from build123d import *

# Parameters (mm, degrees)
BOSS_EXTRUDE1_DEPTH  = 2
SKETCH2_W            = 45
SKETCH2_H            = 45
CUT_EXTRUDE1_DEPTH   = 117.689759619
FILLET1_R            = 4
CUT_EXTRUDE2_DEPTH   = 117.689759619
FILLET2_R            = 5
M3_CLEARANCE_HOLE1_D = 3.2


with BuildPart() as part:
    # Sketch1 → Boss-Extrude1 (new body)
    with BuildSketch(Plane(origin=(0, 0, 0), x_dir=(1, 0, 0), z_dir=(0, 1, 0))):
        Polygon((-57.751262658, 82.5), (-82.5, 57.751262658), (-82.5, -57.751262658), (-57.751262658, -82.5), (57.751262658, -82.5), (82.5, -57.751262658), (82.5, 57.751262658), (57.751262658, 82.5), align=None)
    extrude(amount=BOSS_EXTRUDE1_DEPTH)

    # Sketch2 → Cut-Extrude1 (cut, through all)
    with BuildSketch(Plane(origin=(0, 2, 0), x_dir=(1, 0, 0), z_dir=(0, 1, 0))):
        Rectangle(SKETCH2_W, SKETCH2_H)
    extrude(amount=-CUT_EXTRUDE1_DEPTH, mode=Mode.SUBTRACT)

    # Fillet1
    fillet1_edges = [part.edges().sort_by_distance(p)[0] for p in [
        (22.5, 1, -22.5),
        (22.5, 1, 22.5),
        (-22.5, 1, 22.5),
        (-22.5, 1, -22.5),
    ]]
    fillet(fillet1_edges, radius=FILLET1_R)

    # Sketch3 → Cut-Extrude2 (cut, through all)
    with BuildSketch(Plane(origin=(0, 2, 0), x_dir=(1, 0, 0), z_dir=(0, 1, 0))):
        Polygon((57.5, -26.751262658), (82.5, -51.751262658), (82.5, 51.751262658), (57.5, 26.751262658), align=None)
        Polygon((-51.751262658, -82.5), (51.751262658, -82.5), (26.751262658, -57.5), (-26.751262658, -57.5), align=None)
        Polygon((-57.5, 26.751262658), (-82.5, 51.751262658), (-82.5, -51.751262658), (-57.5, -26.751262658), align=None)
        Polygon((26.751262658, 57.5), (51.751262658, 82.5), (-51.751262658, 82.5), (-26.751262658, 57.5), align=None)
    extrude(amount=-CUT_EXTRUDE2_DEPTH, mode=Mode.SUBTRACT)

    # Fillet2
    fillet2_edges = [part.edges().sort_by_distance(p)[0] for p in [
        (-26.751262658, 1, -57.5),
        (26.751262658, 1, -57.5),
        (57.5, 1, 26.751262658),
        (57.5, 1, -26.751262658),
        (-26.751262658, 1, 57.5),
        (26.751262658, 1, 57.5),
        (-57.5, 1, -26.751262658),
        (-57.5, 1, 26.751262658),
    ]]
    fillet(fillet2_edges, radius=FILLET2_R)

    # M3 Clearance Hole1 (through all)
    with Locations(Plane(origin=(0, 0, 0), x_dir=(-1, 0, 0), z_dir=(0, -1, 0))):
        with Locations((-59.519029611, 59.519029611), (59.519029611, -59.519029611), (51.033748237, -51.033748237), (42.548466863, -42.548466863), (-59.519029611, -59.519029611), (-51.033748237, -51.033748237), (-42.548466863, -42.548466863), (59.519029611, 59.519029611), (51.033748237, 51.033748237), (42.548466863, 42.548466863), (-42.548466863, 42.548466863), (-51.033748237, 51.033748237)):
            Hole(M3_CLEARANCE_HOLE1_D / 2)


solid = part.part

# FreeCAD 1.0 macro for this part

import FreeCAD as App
import Part
import Sketcher


def edges_at(feature, points):
    """Names of the edges that pass closest to the given points."""
    edges = feature.Shape.Edges
    near = lambda p: min(range(len(edges)), key=lambda i: edges[i].distToShape(Part.Vertex(*p))[0])
    return sorted({f"Edge{near(p) + 1}" for p in points})


def add_polygon(sketch, points):
    """Adds a closed chain of lines whose ends are joined by coincident constraints."""
    first, n = sketch.GeometryCount, len(points)
    for a, b in zip(points, points[1:] + points[:1]):
        sketch.addGeometry(Part.LineSegment(App.Vector(*a, 0), App.Vector(*b, 0)), False)
    for i in range(n):
        sketch.addConstraint(Sketcher.Constraint("Coincident", first + i, 2, first + (i + 1) % n, 1))

doc = App.newDocument("Part")
params = doc.addObject("Spreadsheet::Sheet", "Params")
for row, (alias, value) in enumerate([
    ("sketch1_length", "35 mm"),
    ("pad1_length", "2 mm"),
    ("sketch2_width", "45 mm"),
    ("fillet_radius", "4 mm"),
    ("fillet2_radius", "5 mm"),
    ("sketch4_diameter", "3.2 mm"),
    ("hole_diameter", "3.2 mm"),
], start=1):
    params.set(f"A{row}", alias)
    params.set(f"B{row}", "=" + value)
    params.setAlias(f"B{row}", alias)

body = doc.addObject("PartDesign::Body", "Body")

# Sketch on XZ plane
sketch1 = body.newObject("Sketcher::SketchObject", "Sketch")
sketch1.AttachmentSupport = (doc.getObject("XZ_Plane"), [""])
sketch1.MapMode = "FlatFace"
add_polygon(sketch1, [(-58, -82), (-82, -58), (-82, 58), (-58, 82), (58, 82), (82, 58), (82, -58), (58, -82)])  # lines 0-7
sketch1.addConstraint(Sketcher.Constraint("Vertical", 1))
sketch1.addConstraint(Sketcher.Constraint("Horizontal", 3))
sketch1.addConstraint(Sketcher.Constraint("Vertical", 5))
sketch1.addConstraint(Sketcher.Constraint("Horizontal", 7))
sketch1.addConstraint(Sketcher.Constraint("Symmetric", 0, 2, 4, 2, -1, 1))
sketch1.addConstraint(Sketcher.Constraint("Symmetric", 2, 2, 6, 2, -1, 1))
sketch1.addConstraint(Sketcher.Constraint("Perpendicular", 0, 2))
sketch1.addConstraint(Sketcher.Constraint("Perpendicular", 2, 4))
sketch1.addConstraint(Sketcher.Constraint("Perpendicular", 4, 6))
sketch1.addConstraint(Sketcher.Constraint("Horizontal", 1, 2, 4, 2))
sketch1.addConstraint(Sketcher.Constraint("Vertical", 3, 2, 6, 2))
sketch1.addConstraint(Sketcher.Constraint("Equal", 7, 1))
sketch1.addConstraint(Sketcher.Constraint("Distance", 0, 35.0))
sketch1.addConstraint(Sketcher.Constraint("DistanceX", 1, 2, 4, 2, 165.0))
sketch1.setExpression("Constraints[20]", "Params.sketch1_length")
pad1 = body.newObject("PartDesign::Pad", "Pad")
pad1.Profile = sketch1
pad1.setExpression("Length", "Params.pad1_length")
pad1.Reversed = True

# Sketch on XZ plane
sketch2 = body.newObject("Sketcher::SketchObject", "Sketch001")
sketch2.AttachmentSupport = (doc.getObject("XZ_Plane"), [""])
sketch2.MapMode = "FlatFace"
sketch2.AttachmentOffset = App.Placement(App.Vector(0, 0, -2), App.Rotation())
add_polygon(sketch2, [(-22, -22), (-22, 22), (22, 22), (22, -22)])  # lines 0-3
sketch2.addConstraint(Sketcher.Constraint("Vertical", 0))
sketch2.addConstraint(Sketcher.Constraint("Horizontal", 1))
sketch2.addConstraint(Sketcher.Constraint("Vertical", 2))
sketch2.addConstraint(Sketcher.Constraint("Horizontal", 3))
sketch2.addConstraint(Sketcher.Constraint("Symmetric", 0, 2, 2, 2, -1, 1))
sketch2.addConstraint(Sketcher.Constraint("Equal", 3, 0))
sketch2.addConstraint(Sketcher.Constraint("DistanceX", 1, 1, 1, 2, 45.0))
sketch2.setExpression("Constraints[10]", "Params.sketch2_width")
pocket1 = body.newObject("PartDesign::Pocket", "Pocket")
pocket1.Profile = sketch2
pocket1.Type = "ThroughAll"
pocket1.Reversed = True
doc.recompute()

fillet = body.newObject("PartDesign::Fillet", "Fillet")
fillet.Base = (pocket1, edges_at(pocket1, [
    (22.5, 1, -22.5),
    (22.5, 1, 22.5),
    (-22.5, 1, 22.5),
    (-22.5, 1, -22.5),
]))
fillet.setExpression("Radius", "Params.fillet_radius")

# Sketch on XZ plane
sketch3 = body.newObject("Sketcher::SketchObject", "Sketch002")
sketch3.AttachmentSupport = (doc.getObject("XZ_Plane"), [""])
sketch3.MapMode = "FlatFace"
sketch3.AttachmentOffset = App.Placement(App.Vector(0, 0, -2), App.Rotation())
add_polygon(sketch3, [(58, 27), (82, 52), (82, -52), (58, -27)])  # lines 0-3
add_polygon(sketch3, [(-52, 82), (52, 82), (27, 58), (-27, 58)])  # lines 4-7
add_polygon(sketch3, [(-58, -27), (-82, -52), (-82, 52), (-58, 27)])  # lines 8-11
add_polygon(sketch3, [(27, -58), (52, -82), (-52, -82), (-27, -58)])  # lines 12-15
sketch3.addConstraint(Sketcher.Constraint("Vertical", 1))
sketch3.addConstraint(Sketcher.Constraint("Vertical", 3))
sketch3.addConstraint(Sketcher.Constraint("Horizontal", 4))
sketch3.addConstraint(Sketcher.Constraint("Horizontal", 6))
sketch3.addConstraint(Sketcher.Constraint("Vertical", 9))
sketch3.addConstraint(Sketcher.Constraint("Vertical", 11))
sketch3.addConstraint(Sketcher.Constraint("Horizontal", 13))
sketch3.addConstraint(Sketcher.Constraint("Horizontal", 15))
sketch3.addConstraint(Sketcher.Constraint("Symmetric", 0, 2, 8, 2, -1, 1))
sketch3.addConstraint(Sketcher.Constraint("Symmetric", 2, 2, 10, 2, -1, 1))
sketch3.addConstraint(Sketcher.Constraint("Symmetric", 7, 2, 12, 2, -1, 1))
sketch3.addConstraint(Sketcher.Constraint("Symmetric", 5, 2, 14, 2, -1, 1))
sketch3.addConstraint(Sketcher.Constraint("Perpendicular", 0, 2))
sketch3.addConstraint(Sketcher.Constraint("Perpendicular", 2, 5))
sketch3.addConstraint(Sketcher.Constraint("Perpendicular", 5, 7))
sketch3.addConstraint(Sketcher.Constraint("Perpendicular", 7, 8))
sketch3.addConstraint(Sketcher.Constraint("Perpendicular", 8, 10))
sketch3.addConstraint(Sketcher.Constraint("Parallel", 10, 12))
sketch3.addConstraint(Sketcher.Constraint("Perpendicular", 12, 14))
sketch3.addConstraint(Sketcher.Constraint("Horizontal", 1, 2, 8, 2))
sketch3.addConstraint(Sketcher.Constraint("Horizontal", 3, 2, 10, 2))
sketch3.addConstraint(Sketcher.Constraint("Vertical", 4, 2, 12, 2))
sketch3.addConstraint(Sketcher.Constraint("Equal", 13, 1))
sketch3.addConstraint(Sketcher.Constraint("Equal", 15, 3))
sketch3.addConstraint(Sketcher.Constraint("DistanceX", 2, 2, 1, 2, 25.0))
sketch3.addConstraint(Sketcher.Constraint("DistanceX", 8, 2, 2, 2, 140.0))
sketch3.addConstraint(Sketcher.Constraint("DistanceY", -1, 1, 4, 2, 82.5))
sketch3.addConstraint(Sketcher.Constraint("DistanceX", 4, 1, 4, 2, 103.502525))
pocket2 = body.newObject("PartDesign::Pocket", "Pocket001")
pocket2.Profile = sketch3
pocket2.Type = "ThroughAll"
pocket2.Reversed = True
doc.recompute()

fillet2 = body.newObject("PartDesign::Fillet", "Fillet001")
fillet2.Base = (pocket2, edges_at(pocket2, [
    (-26.751, 1, -57.5),
    (26.751, 1, -57.5),
    (57.5, 1, 26.751),
    (57.5, 1, -26.751),
    (-26.751, 1, 57.5),
    (26.751, 1, 57.5),
    (-57.5, 1, -26.751),
    (-57.5, 1, 26.751),
]))
fillet2.setExpression("Radius", "Params.fillet2_radius")

# Sketch on XZ plane
sketch4 = body.newObject("Sketcher::SketchObject", "Sketch003")
sketch4.AttachmentSupport = (doc.getObject("XZ_Plane"), [""])
sketch4.MapMode = "FlatFace"
sketch4.addGeometry(Part.Circle(App.Vector(59.5, -59.5, 0), App.Vector(0, 0, 1), 1.6), False)
sketch4.addGeometry(Part.Circle(App.Vector(-59.5, 59.5, 0), App.Vector(0, 0, 1), 1.6), False)
sketch4.addGeometry(Part.Circle(App.Vector(-51, 51, 0), App.Vector(0, 0, 1), 1.6), False)
sketch4.addGeometry(Part.Circle(App.Vector(-42.5, 42.5, 0), App.Vector(0, 0, 1), 1.6), False)
sketch4.addGeometry(Part.Circle(App.Vector(59.5, 59.5, 0), App.Vector(0, 0, 1), 1.6), False)
sketch4.addGeometry(Part.Circle(App.Vector(51, 51, 0), App.Vector(0, 0, 1), 1.6), False)
sketch4.addGeometry(Part.Circle(App.Vector(42.5, 42.5, 0), App.Vector(0, 0, 1), 1.6), False)
sketch4.addGeometry(Part.Circle(App.Vector(-59.5, -59.5, 0), App.Vector(0, 0, 1), 1.6), False)
sketch4.addGeometry(Part.Circle(App.Vector(-51, -51, 0), App.Vector(0, 0, 1), 1.6), False)
sketch4.addGeometry(Part.Circle(App.Vector(-42.5, -42.5, 0), App.Vector(0, 0, 1), 1.6), False)
sketch4.addGeometry(Part.Circle(App.Vector(42.5, -42.5, 0), App.Vector(0, 0, 1), 1.6), False)
sketch4.addGeometry(Part.Circle(App.Vector(51, -51, 0), App.Vector(0, 0, 1), 1.6), False)
sketch4.addConstraint(Sketcher.Constraint("Equal", 0, 1))
sketch4.addConstraint(Sketcher.Constraint("Equal", 1, 2))
sketch4.addConstraint(Sketcher.Constraint("Equal", 2, 3))
sketch4.addConstraint(Sketcher.Constraint("Equal", 3, 4))
sketch4.addConstraint(Sketcher.Constraint("Equal", 4, 5))
sketch4.addConstraint(Sketcher.Constraint("Equal", 5, 6))
sketch4.addConstraint(Sketcher.Constraint("Equal", 6, 7))
sketch4.addConstraint(Sketcher.Constraint("Equal", 7, 8))
sketch4.addConstraint(Sketcher.Constraint("Equal", 8, 9))
sketch4.addConstraint(Sketcher.Constraint("Equal", 9, 10))
sketch4.addConstraint(Sketcher.Constraint("Equal", 10, 11))
sketch4.addConstraint(Sketcher.Constraint("Symmetric", 0, 3, 1, 3, -1, 1))
sketch4.addConstraint(Sketcher.Constraint("Symmetric", 4, 3, 7, 3, -1, 1))
sketch4.addConstraint(Sketcher.Constraint("Symmetric", 5, 3, 8, 3, -1, 1))
sketch4.addConstraint(Sketcher.Constraint("Symmetric", 6, 3, 9, 3, -1, 1))
sketch4.addConstraint(Sketcher.Constraint("Symmetric", 3, 3, 10, 3, -1, 1))
sketch4.addConstraint(Sketcher.Constraint("Symmetric", 2, 3, 11, 3, -1, 1))
sketch4.addConstraint(Sketcher.Constraint("Symmetric", 1, 3, 4, 3, -2))
sketch4.addConstraint(Sketcher.Constraint("Symmetric", 2, 3, 5, 3, -2))
sketch4.addConstraint(Sketcher.Constraint("Symmetric", 3, 3, 6, 3, -2))
sketch4.addConstraint(Sketcher.Constraint("Diameter", 0, 3.2))
sketch4.addConstraint(Sketcher.Constraint("DistanceX", -1, 1, 0, 3, 59.51903))
sketch4.addConstraint(Sketcher.Constraint("DistanceY", 0, 3, -1, 1, 59.51903))
sketch4.addConstraint(Sketcher.Constraint("DistanceX", 2, 3, -1, 1, 51.033748))
sketch4.addConstraint(Sketcher.Constraint("DistanceY", -1, 1, 2, 3, 51.033748))
sketch4.addConstraint(Sketcher.Constraint("DistanceX", 2, 3, 3, 3, 8.485281))
sketch4.addConstraint(Sketcher.Constraint("DistanceY", 3, 3, 2, 3, 8.485281))
sketch4.setExpression("Constraints[20]", "Params.sketch4_diameter")
doc.recompute()
hole = body.newObject("PartDesign::Hole", "Hole")
hole.Profile = sketch4
hole.ThreadType = "None"
hole.setExpression("Diameter", "Params.hole_diameter")
hole.DepthType = "ThroughAll"

doc.recompute()
